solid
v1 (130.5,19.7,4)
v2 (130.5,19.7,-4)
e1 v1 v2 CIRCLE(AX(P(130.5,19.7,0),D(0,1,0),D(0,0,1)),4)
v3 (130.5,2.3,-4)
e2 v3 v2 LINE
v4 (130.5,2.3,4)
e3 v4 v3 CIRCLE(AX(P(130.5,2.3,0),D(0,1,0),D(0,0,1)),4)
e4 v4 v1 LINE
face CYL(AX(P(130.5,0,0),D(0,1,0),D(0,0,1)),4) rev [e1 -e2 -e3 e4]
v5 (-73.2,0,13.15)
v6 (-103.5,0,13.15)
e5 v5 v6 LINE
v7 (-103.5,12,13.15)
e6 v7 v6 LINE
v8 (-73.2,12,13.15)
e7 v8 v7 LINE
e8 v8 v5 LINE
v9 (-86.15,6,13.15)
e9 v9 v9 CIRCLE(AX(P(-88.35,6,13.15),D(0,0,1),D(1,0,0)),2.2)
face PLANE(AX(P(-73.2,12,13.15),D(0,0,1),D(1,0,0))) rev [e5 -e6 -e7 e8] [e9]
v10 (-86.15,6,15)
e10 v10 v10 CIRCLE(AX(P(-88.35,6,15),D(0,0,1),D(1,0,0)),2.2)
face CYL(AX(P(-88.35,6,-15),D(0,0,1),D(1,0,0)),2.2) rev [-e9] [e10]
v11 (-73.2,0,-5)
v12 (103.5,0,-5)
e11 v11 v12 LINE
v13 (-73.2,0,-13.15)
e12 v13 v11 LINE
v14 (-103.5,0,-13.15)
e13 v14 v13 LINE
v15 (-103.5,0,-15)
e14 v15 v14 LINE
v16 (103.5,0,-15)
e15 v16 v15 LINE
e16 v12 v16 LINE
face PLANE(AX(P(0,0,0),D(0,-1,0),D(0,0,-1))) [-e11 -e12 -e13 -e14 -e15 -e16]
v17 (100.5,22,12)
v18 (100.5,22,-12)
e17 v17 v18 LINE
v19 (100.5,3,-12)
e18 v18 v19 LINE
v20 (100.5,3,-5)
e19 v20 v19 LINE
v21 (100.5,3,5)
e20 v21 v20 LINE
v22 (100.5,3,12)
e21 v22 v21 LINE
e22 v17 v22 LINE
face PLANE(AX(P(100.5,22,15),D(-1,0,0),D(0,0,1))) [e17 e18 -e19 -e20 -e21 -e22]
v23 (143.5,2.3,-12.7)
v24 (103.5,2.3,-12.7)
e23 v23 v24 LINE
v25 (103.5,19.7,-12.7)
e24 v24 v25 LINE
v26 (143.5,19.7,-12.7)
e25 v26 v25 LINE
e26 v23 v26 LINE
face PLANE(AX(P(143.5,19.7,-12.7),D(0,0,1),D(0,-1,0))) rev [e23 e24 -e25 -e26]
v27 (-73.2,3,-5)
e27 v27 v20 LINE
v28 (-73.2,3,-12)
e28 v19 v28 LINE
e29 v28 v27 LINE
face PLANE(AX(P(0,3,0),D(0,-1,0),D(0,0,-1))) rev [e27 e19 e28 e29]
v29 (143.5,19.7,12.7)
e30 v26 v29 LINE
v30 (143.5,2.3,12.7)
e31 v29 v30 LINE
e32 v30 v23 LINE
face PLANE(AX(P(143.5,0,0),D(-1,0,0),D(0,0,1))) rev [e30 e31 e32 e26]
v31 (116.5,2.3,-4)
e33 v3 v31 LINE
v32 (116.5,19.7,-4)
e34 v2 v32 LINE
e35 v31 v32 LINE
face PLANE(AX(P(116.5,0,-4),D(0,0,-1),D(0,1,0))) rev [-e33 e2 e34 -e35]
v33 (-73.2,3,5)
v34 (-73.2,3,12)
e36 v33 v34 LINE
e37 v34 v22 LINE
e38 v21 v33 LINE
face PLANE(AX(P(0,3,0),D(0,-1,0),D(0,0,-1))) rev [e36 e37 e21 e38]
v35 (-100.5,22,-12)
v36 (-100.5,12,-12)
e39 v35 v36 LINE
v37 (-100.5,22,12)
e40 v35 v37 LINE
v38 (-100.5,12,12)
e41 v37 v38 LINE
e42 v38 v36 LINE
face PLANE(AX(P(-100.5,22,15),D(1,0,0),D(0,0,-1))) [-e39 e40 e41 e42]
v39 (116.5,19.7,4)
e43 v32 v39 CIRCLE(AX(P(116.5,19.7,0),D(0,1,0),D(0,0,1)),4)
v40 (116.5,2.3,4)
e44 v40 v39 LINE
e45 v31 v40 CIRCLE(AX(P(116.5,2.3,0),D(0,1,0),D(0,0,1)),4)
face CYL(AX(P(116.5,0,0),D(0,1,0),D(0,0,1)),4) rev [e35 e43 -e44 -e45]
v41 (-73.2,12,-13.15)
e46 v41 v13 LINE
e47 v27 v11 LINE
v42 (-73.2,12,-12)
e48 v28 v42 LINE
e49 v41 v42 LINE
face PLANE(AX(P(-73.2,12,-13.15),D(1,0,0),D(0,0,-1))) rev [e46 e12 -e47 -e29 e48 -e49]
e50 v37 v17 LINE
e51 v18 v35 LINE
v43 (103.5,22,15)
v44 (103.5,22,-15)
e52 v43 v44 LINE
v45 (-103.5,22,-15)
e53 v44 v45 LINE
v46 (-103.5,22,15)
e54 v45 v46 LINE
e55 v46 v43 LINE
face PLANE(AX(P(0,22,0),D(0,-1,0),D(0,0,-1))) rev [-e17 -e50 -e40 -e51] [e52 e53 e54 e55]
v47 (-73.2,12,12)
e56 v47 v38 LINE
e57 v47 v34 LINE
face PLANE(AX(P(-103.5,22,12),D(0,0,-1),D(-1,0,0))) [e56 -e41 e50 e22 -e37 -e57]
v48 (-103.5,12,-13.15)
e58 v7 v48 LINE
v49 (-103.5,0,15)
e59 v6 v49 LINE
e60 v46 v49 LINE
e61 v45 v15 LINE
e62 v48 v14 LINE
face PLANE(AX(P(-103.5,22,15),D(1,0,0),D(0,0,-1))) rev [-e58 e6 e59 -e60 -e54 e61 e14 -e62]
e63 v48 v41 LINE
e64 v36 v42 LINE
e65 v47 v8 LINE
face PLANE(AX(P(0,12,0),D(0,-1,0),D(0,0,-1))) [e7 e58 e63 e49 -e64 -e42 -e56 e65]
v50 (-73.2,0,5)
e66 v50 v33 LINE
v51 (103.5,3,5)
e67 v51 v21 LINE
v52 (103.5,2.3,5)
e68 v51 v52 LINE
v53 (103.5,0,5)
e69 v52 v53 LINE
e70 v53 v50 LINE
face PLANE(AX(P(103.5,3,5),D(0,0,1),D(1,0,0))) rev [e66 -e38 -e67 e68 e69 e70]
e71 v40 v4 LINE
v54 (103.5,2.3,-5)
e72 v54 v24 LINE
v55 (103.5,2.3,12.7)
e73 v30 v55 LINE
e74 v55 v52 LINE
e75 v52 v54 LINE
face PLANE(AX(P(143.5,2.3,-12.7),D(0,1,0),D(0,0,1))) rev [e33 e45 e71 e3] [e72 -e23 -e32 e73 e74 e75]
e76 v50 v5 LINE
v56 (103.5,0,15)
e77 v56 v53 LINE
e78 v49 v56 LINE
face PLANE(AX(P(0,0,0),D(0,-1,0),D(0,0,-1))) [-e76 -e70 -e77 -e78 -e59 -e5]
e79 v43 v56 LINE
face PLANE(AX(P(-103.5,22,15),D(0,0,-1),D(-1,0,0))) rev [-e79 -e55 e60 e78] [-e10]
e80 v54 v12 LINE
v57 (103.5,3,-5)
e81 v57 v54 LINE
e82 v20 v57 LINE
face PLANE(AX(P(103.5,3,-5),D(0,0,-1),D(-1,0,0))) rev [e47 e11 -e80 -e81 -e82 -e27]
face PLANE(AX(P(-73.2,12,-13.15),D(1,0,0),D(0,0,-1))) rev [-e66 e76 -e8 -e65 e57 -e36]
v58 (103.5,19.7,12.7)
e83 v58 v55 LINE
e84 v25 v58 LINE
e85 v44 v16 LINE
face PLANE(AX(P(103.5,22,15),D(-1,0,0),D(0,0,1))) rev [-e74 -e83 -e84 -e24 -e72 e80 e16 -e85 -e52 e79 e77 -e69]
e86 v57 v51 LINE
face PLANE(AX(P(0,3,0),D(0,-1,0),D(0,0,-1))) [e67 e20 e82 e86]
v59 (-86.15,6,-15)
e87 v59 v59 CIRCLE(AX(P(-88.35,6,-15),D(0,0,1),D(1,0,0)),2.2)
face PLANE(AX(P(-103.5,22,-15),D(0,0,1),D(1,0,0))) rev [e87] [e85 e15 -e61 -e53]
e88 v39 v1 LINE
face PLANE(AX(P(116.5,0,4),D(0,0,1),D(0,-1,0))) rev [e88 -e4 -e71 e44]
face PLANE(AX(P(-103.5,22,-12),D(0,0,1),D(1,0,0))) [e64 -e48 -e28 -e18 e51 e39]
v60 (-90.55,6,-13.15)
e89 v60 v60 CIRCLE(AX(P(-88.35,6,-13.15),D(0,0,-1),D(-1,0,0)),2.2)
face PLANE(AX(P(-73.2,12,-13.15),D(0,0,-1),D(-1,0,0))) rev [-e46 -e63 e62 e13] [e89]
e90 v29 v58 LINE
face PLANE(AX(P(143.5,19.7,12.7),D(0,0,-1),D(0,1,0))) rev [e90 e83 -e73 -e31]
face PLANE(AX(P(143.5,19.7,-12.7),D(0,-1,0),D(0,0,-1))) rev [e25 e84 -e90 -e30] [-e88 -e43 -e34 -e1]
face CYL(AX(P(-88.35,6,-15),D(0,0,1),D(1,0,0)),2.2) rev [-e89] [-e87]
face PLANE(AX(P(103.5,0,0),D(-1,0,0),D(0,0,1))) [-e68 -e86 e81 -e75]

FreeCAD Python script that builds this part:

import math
import FreeCAD as App
import Part
import Sketcher

V = App.Vector
Q = App.Units.Quantity


def faces_at(feature, points):
    """Names of the faces that lie closest to the given points."""
    faces = feature.Shape.Faces
    near = lambda p: min(range(len(faces)), key=lambda i: faces[i].distToShape(Part.Vertex(*p))[0])
    return sorted({f"Face{near(p) + 1}" for p in points})

doc = App.newDocument("Part")
body = doc.addObject("PartDesign::Body", "Body")

# Sketch on XZ plane
sketch1 = doc.addObject("Sketcher::SketchObject", "Sketch")
body.addObject(sketch1)
sketch1.AttachmentSupport = (doc.XZ_Plane, [""])
sketch1.MapMode = "FlatFace"
sketch1.addGeometry([
    Part.LineSegment(V(-104, -15, 0), V(-104, 15, 0)),
    Part.LineSegment(V(-104, 15, 0), V(104, 15, 0)),
    Part.LineSegment(V(104, 15, 0), V(104, -15, 0)),
    Part.LineSegment(V(104, -15, 0), V(-104, -15, 0)),
], False)
sketch1.addConstraint([
    Sketcher.Constraint("Coincident", 0, 2, 1, 1),
    Sketcher.Constraint("Coincident", 1, 2, 2, 1),
    Sketcher.Constraint("Coincident", 2, 2, 3, 1),
    Sketcher.Constraint("Coincident", 3, 2, 0, 1),
    Sketcher.Constraint("Vertical", 0),
    Sketcher.Constraint("Horizontal", 1),
    Sketcher.Constraint("Vertical", 2),
    Sketcher.Constraint("Horizontal", 3),
    Sketcher.Constraint("Symmetric", 0, 2, 2, 2, -1, 1),
    Sketcher.Constraint("DistanceX", 1, 1, 1, 2, Q("207 mm")),
    Sketcher.Constraint("DistanceY", 0, 1, 0, 2, Q("30 mm")),
])
pad1 = doc.addObject("PartDesign::Pad", "Pad")
body.addObject(pad1)
pad1.Profile = sketch1
pad1.Length = 22
pad1.Reversed = True
doc.recompute()

thickness = doc.addObject("PartDesign::Thickness", "Thickness")
body.addObject(thickness)
thickness.Base = (pad1, faces_at(pad1, [(0, 22, 0)]))
thickness.Value = 3
thickness.Reversed = True
thickness.Join = "Intersection"

# Sketch on XZ plane
sketch2 = doc.addObject("Sketcher::SketchObject", "Sketch001")
body.addObject(sketch2)
sketch2.AttachmentSupport = (doc.XZ_Plane, [""])
sketch2.MapMode = "FlatFace"
sketch2.addGeometry([
    Part.LineSegment(V(104, -5, 0), V(104, 5, 0)),
    Part.LineSegment(V(104, 5, 0), V(-104, 5, 0)),
    Part.LineSegment(V(-104, 5, 0), V(-104, -5, 0)),
    Part.LineSegment(V(-104, -5, 0), V(104, -5, 0)),
], False)
sketch2.addConstraint([
    Sketcher.Constraint("Coincident", 0, 2, 1, 1),
    Sketcher.Constraint("Coincident", 1, 2, 2, 1),
    Sketcher.Constraint("Coincident", 2, 2, 3, 1),
    Sketcher.Constraint("Coincident", 3, 2, 0, 1),
    Sketcher.Constraint("Vertical", 0),
    Sketcher.Constraint("Horizontal", 1),
    Sketcher.Constraint("Vertical", 2),
    Sketcher.Constraint("Horizontal", 3),
    Sketcher.Constraint("Symmetric", 0, 2, 2, 2, -1, 1),
    Sketcher.Constraint("DistanceX", 1, 2, 1, 1, Q("207 mm")),
    Sketcher.Constraint("DistanceY", 0, 1, 0, 2, Q("10 mm")),
])
pocket1 = doc.addObject("PartDesign::Pocket", "Pocket")
body.addObject(pocket1)
pocket1.Profile = sketch2
pocket1.Length = 3

# Sketch on XZ plane
sketch3 = doc.addObject("Sketcher::SketchObject", "Sketch002")
body.addObject(sketch3)
sketch3.AttachmentSupport = (doc.XZ_Plane, [""])
sketch3.MapMode = "FlatFace"
sketch3.addGeometry([
    Part.LineSegment(V(-73, -13, 0), V(-73, 13, 0)),
    Part.LineSegment(V(-73, 13, 0), V(-104, 13, 0)),
    Part.LineSegment(V(-104, 13, 0), V(-104, -13, 0)),
    Part.LineSegment(V(-104, -13, 0), V(-73, -13, 0)),
], False)
sketch3.addConstraint([
    Sketcher.Constraint("Coincident", 0, 2, 1, 1),
    Sketcher.Constraint("Coincident", 1, 2, 2, 1),
    Sketcher.Constraint("Coincident", 2, 2, 3, 1),
    Sketcher.Constraint("Coincident", 3, 2, 0, 1),
    Sketcher.Constraint("Vertical", 0),
    Sketcher.Constraint("Horizontal", 1),
    Sketcher.Constraint("Vertical", 2),
    Sketcher.Constraint("Horizontal", 3),
    Sketcher.Constraint("DistanceX", 1, 2, 1, 1, Q("30.3 mm")),
    Sketcher.Constraint("DistanceY", 0, 1, 0, 2, Q("26.3 mm")),
    Sketcher.Constraint("DistanceX", 0, 2, -1, 1, Q("73.2 mm")),
    Sketcher.Constraint("DistanceY", -1, 1, 0, 2, Q("13.15 mm")),
])
pocket2 = doc.addObject("PartDesign::Pocket", "Pocket001")
body.addObject(pocket2)
pocket2.Profile = sketch3
pocket2.Length = 12

# Sketch on XY plane
sketch4 = doc.addObject("Sketcher::SketchObject", "Sketch003")
body.addObject(sketch4)
sketch4.AttachmentSupport = (doc.XY_Plane, [""])
sketch4.MapMode = "FlatFace"
sketch4.AttachmentOffset = App.Placement(V(0, 0, 15), App.Rotation())
sketch4.addGeometry(Part.Circle(V(-88.3, 6, 0), V(0, 0, 1), 2.2), False)
sketch4.addConstraint([
    Sketcher.Constraint("Diameter", 0, Q("4.4 mm")),
    Sketcher.Constraint("DistanceY", -1, 1, 0, 3, Q("6 mm")),
    Sketcher.Constraint("DistanceX", 0, 3, -1, 1, Q("88.35 mm")),
])
pocket3 = doc.addObject("PartDesign::Pocket", "Pocket002")
body.addObject(pocket3)
pocket3.Profile = sketch4
pocket3.Type = "ThroughAll"

# Sketch on YZ plane
sketch5 = doc.addObject("Sketcher::SketchObject", "Sketch004")
body.addObject(sketch5)
sketch5.AttachmentSupport = (doc.YZ_Plane, [""])
sketch5.MapMode = "FlatFace"
sketch5.AttachmentOffset = App.Placement(V(0, 0, 103.5), App.Rotation())
sketch5.addGeometry([
    Part.LineSegment(V(20, 13, 0), V(2, 13, 0)),
    Part.LineSegment(V(2, 13, 0), V(2, -13, 0)),
    Part.LineSegment(V(2, -13, 0), V(20, -13, 0)),
    Part.LineSegment(V(20, -13, 0), V(20, 13, 0)),
], False)
sketch5.addConstraint([
    Sketcher.Constraint("Coincident", 0, 2, 1, 1),
    Sketcher.Constraint("Coincident", 1, 2, 2, 1),
    Sketcher.Constraint("Coincident", 2, 2, 3, 1),
    Sketcher.Constraint("Coincident", 3, 2, 0, 1),
    Sketcher.Constraint("Horizontal", 0),
    Sketcher.Constraint("Vertical", 1),
    Sketcher.Constraint("Horizontal", 2),
    Sketcher.Constraint("Vertical", 3),
    Sketcher.Constraint("DistanceX", 0, 2, 0, 1, Q("17.4 mm")),
    Sketcher.Constraint("DistanceY", 1, 2, 1, 1, Q("25.4 mm")),
    Sketcher.Constraint("DistanceX", -1, 1, 0, 2, Q("2.3 mm")),
    Sketcher.Constraint("DistanceY", -1, 1, 0, 2, Q("12.7 mm")),
])
pad2 = doc.addObject("PartDesign::Pad", "Pad001")
body.addObject(pad2)
pad2.Profile = sketch5
pad2.Length = 40

# Sketch on XZ plane
sketch6 = doc.addObject("Sketcher::SketchObject", "Sketch005")
body.addObject(sketch6)
sketch6.AttachmentSupport = (doc.XZ_Plane, [""])
sketch6.MapMode = "FlatFace"
sketch6.AttachmentOffset = App.Placement(V(0, 0, -19.7), App.Rotation())
sketch6.addGeometry([
    Part.LineSegment(V(130.5, -4, 0), V(116.5, -4, 0)),
    Part.ArcOfCircle(Part.Circle(V(116.5, 0, 0), V(0, 0, 1), 4), math.radians(90), math.radians(270)),
    Part.LineSegment(V(116.5, 4, 0), V(130.5, 4, 0)),
    Part.ArcOfCircle(Part.Circle(V(130.5, 0, 0), V(0, 0, 1), 4), math.radians(-90), math.radians(90)),
], False)
sketch6.addConstraint([
    Sketcher.Constraint("Tangent", 0, 2, 1, 2),
    Sketcher.Constraint("Tangent", 1, 1, 2, 1),
    Sketcher.Constraint("Tangent", 2, 2, 3, 2),
    Sketcher.Constraint("Tangent", 3, 1, 0, 1),
    Sketcher.Constraint("Horizontal", 0),
    Sketcher.Constraint("Horizontal", 2),
    Sketcher.Constraint("PointOnObject", 1, 3, -1),
    Sketcher.Constraint("Radius", 1, Q("4 mm")),
    Sketcher.Constraint("DistanceX", 0, 2, 0, 1, Q("14 mm")),
    Sketcher.Constraint("DistanceX", -1, 1, 1, 3, Q("116.5 mm")),
])
pocket4 = doc.addObject("PartDesign::Pocket", "Pocket003")
body.addObject(pocket4)
pocket4.Profile = sketch6
pocket4.Type = "ThroughAll"
pocket4.Reversed = True

doc.recompute()
